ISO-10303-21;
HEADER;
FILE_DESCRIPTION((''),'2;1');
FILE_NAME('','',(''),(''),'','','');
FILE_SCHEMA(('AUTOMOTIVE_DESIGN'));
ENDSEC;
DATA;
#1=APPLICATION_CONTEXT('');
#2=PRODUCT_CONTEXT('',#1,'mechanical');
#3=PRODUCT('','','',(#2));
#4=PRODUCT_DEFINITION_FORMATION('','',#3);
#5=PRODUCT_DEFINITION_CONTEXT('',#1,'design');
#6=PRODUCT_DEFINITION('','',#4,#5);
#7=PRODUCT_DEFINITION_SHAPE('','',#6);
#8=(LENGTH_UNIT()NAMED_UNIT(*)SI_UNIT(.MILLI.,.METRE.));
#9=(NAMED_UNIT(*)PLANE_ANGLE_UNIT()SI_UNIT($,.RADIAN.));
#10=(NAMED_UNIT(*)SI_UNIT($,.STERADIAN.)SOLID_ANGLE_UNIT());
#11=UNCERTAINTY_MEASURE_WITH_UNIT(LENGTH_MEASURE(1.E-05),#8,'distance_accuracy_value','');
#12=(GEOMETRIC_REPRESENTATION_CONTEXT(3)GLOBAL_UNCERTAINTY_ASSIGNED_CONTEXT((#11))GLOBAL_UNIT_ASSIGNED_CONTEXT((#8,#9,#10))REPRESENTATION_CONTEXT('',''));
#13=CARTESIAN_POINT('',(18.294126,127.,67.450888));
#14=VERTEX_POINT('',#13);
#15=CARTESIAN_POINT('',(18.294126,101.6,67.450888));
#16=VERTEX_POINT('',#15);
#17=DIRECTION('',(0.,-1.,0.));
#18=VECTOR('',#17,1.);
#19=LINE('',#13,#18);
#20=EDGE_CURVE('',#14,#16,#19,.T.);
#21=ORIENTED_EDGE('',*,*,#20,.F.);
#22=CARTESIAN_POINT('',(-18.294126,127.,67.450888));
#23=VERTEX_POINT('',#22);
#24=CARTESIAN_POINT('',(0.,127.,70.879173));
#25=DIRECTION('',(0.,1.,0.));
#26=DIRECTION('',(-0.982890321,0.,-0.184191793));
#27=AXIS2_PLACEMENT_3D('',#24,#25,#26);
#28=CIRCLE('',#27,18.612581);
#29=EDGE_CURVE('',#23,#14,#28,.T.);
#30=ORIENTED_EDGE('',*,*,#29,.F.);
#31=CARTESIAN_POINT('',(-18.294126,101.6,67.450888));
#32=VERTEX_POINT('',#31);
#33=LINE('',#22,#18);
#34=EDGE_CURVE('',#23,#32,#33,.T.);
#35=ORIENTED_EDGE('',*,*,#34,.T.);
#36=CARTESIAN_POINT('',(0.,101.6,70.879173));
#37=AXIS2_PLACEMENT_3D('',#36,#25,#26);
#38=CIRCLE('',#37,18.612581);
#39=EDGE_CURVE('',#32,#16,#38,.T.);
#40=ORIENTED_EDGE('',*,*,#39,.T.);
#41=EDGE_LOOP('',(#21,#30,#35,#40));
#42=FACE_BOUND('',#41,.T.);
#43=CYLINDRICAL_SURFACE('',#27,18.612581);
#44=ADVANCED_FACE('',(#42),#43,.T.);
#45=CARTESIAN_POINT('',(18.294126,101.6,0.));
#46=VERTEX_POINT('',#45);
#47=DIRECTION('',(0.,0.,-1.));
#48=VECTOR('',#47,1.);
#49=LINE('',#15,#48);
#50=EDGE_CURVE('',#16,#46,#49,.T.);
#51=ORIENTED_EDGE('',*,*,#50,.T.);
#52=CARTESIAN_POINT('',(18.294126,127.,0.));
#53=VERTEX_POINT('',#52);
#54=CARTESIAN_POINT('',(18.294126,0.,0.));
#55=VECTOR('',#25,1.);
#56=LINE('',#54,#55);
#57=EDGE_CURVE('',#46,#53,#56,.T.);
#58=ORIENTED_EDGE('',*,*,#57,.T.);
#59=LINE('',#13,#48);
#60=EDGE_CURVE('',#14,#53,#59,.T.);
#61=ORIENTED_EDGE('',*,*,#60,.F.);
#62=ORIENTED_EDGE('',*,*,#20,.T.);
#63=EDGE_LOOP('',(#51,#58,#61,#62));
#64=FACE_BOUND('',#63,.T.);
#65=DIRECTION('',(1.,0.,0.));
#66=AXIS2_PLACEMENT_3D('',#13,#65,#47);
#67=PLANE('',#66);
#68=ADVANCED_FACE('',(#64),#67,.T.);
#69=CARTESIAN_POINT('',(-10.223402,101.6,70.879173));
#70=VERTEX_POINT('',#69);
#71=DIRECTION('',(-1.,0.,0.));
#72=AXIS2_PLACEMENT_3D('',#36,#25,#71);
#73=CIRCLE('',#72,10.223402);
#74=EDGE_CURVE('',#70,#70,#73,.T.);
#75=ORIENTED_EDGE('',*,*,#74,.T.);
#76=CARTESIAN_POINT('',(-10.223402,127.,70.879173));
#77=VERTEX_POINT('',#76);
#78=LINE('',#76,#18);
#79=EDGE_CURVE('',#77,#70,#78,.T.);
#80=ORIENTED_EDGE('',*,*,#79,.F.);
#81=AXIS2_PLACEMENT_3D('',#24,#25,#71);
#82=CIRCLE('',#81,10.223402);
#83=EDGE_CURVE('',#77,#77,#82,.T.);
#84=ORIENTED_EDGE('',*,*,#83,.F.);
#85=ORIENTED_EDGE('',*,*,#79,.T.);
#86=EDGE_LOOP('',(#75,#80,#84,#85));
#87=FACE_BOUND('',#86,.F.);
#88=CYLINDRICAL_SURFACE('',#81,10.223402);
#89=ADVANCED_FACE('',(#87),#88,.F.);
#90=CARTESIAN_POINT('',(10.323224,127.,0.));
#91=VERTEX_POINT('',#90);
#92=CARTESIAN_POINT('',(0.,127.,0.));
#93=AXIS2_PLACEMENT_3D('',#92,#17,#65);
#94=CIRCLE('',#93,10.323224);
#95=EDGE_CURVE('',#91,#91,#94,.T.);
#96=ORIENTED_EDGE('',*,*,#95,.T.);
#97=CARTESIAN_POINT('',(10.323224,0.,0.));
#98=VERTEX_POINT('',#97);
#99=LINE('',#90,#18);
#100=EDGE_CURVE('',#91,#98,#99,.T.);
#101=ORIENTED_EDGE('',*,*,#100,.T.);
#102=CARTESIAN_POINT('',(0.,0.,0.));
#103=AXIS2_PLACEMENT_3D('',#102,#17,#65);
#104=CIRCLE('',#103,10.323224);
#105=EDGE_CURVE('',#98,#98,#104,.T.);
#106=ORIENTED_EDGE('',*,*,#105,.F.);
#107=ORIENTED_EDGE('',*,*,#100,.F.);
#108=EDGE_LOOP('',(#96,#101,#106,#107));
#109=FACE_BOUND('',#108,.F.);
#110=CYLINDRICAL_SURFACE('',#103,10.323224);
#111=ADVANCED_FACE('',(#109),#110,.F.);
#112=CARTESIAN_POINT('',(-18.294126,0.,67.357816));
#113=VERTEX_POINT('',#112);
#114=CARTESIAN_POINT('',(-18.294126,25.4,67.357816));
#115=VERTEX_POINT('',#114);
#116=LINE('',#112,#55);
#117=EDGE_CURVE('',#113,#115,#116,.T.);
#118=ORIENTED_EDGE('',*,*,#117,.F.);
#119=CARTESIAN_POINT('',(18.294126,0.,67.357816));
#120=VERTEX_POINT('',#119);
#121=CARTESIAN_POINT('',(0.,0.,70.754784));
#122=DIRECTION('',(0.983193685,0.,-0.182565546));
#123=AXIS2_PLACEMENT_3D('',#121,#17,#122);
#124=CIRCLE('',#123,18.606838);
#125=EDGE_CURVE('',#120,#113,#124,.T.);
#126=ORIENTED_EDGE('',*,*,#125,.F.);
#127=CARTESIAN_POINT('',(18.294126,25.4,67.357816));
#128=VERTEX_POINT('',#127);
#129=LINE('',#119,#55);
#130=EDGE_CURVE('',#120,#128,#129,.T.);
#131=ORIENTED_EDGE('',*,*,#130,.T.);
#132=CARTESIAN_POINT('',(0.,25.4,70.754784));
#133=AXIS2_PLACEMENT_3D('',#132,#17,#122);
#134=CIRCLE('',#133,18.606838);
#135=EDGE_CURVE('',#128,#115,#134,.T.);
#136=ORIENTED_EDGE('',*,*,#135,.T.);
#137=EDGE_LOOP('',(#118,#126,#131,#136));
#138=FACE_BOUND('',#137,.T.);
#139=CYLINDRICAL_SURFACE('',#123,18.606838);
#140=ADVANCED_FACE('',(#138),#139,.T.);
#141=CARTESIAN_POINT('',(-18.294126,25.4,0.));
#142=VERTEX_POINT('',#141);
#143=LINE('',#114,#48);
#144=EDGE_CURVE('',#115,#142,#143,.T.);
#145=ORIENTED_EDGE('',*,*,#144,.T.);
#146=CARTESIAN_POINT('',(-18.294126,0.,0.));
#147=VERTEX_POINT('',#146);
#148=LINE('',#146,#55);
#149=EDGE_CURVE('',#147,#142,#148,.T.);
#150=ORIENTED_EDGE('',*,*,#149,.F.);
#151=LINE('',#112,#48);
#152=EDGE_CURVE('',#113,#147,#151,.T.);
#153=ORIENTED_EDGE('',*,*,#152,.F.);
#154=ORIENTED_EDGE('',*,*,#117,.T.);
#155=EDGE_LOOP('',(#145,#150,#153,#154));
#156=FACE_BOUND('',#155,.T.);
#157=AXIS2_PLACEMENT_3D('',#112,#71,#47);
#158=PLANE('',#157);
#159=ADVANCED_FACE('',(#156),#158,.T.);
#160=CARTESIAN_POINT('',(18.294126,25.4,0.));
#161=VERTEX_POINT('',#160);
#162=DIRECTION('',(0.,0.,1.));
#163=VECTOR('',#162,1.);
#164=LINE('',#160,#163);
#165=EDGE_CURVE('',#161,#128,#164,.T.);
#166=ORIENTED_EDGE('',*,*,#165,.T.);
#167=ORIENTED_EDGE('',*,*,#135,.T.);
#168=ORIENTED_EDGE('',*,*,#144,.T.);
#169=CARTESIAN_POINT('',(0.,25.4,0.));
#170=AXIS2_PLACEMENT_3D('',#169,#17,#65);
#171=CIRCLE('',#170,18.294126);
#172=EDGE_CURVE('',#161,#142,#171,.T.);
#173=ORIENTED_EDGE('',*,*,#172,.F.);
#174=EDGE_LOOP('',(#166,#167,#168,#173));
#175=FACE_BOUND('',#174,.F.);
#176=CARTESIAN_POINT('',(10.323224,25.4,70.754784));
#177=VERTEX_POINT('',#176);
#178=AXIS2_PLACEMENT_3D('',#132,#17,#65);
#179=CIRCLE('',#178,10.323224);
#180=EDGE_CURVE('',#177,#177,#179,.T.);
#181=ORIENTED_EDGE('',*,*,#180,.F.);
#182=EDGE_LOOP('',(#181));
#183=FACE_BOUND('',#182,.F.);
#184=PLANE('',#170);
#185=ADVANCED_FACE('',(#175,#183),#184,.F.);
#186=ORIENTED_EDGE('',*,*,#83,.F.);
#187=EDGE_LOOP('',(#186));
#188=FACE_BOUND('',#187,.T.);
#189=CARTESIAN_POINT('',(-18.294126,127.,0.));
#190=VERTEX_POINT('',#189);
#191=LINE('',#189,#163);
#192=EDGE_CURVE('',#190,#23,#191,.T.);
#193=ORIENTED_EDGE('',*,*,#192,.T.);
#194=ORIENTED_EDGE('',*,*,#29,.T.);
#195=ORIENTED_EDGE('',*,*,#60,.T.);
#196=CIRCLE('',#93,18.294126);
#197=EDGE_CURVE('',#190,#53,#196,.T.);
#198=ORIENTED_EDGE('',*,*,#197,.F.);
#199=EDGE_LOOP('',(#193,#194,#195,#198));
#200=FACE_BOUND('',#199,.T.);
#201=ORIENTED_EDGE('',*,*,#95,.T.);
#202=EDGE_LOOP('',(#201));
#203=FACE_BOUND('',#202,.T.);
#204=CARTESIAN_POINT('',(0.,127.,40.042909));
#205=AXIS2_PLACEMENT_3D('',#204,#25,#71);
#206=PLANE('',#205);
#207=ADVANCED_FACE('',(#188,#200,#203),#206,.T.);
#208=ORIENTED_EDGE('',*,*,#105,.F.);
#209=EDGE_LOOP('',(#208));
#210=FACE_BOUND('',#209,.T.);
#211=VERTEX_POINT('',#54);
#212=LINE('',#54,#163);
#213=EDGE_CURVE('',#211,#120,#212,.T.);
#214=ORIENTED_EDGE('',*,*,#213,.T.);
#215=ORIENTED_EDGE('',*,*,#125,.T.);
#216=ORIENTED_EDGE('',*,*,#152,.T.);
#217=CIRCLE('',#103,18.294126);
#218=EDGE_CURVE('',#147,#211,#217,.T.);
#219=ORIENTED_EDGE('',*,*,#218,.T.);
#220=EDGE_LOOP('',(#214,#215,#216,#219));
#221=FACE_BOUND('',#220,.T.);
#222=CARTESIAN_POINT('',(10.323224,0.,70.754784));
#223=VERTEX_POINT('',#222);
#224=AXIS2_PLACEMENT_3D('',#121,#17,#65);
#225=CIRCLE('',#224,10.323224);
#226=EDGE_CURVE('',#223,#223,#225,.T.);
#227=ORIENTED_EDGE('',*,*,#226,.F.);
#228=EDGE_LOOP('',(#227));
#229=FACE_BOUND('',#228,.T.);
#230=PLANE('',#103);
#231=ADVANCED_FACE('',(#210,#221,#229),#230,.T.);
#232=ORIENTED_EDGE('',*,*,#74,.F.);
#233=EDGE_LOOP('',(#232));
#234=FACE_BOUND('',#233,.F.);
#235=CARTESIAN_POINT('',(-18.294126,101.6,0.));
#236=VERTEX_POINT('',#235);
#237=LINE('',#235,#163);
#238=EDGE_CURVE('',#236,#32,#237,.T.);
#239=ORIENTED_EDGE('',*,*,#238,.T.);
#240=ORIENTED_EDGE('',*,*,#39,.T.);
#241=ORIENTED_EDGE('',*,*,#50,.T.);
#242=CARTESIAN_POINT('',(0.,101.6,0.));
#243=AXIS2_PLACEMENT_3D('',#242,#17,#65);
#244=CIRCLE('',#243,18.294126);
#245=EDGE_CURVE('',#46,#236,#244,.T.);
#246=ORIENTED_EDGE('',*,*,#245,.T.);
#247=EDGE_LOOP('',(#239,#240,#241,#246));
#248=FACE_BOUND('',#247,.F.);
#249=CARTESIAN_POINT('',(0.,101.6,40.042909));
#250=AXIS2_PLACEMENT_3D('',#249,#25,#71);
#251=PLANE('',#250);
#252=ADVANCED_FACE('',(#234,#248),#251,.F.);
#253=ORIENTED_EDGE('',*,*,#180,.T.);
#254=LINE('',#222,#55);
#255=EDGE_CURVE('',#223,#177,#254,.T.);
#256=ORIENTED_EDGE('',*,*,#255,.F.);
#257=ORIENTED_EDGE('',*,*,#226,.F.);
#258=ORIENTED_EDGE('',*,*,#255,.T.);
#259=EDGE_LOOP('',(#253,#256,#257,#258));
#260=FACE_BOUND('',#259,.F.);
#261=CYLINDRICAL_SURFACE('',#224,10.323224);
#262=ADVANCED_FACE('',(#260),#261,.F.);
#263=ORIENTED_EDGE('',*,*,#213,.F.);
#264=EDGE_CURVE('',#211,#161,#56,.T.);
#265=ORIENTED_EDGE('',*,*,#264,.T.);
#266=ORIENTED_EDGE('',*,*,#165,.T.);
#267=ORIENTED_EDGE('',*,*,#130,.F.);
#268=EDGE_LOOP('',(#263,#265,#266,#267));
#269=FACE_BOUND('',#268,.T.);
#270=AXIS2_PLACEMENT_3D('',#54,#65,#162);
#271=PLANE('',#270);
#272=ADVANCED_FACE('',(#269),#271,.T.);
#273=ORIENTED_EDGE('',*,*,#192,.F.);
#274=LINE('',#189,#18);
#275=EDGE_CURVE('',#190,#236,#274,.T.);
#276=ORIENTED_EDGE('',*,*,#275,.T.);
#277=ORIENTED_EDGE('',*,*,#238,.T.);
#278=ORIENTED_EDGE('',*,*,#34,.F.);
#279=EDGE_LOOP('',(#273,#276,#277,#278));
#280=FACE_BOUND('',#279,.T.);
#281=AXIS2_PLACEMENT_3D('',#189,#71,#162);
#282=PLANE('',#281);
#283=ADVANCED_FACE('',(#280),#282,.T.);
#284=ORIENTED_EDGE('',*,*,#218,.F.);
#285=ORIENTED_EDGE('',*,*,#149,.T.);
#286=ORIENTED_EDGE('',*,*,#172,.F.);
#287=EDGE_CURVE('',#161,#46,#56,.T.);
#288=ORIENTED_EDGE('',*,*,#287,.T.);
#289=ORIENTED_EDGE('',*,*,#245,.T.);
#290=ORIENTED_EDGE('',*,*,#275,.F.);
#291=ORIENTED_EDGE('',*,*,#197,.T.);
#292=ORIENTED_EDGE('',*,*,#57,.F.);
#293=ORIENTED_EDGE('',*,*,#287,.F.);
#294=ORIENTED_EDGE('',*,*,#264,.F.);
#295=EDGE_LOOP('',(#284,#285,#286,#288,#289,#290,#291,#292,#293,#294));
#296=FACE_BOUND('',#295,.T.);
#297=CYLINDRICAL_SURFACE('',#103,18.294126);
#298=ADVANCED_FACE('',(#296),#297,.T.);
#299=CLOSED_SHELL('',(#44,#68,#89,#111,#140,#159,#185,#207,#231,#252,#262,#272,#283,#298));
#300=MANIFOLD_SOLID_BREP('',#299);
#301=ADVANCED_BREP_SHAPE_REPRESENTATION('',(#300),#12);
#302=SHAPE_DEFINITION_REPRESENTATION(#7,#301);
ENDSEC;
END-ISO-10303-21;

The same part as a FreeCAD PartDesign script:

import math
import FreeCAD as App
import Part
import Sketcher

V = App.Vector
Q = App.Units.Quantity

doc = App.newDocument("Part")
body = doc.addObject("PartDesign::Body", "Body")

sketch1 = body.newObject("Sketcher::SketchObject", "Sketch")
sketch1.AttachmentSupport = (doc.getObject("XZ_Plane"), [""])
sketch1.MapMode = "FlatFace"
sketch1.addGeometry(Part.Circle(V(0, 0, 0), V(0, 0, 1), 18.294126), False)
sketch1.addGeometry(Part.Circle(V(0, 0, 0), V(0, 0, 1), 10.323224), False)
sketch1.addConstraint(Sketcher.Constraint("Coincident", 0, 3, -1, 1))
sketch1.addConstraint(Sketcher.Constraint("Coincident", 1, 3, -1, 1))
sketch1.addConstraint(Sketcher.Constraint("Diameter", 0, 36.588252))
sketch1.addConstraint(Sketcher.Constraint("Diameter", 1, 20.646448))
pad1 = body.newObject("PartDesign::Pad", "Pad")
pad1.Profile = sketch1
pad1.Length = Q("5 in")
pad1.Reversed = True

sketch2 = body.newObject("Sketcher::SketchObject", "Sketch001")
sketch2.AttachmentSupport = (doc.getObject("XZ_Plane"), [""])
sketch2.MapMode = "FlatFace"
sketch2.addGeometry(Part.ArcOfCircle(Part.Circle(V(0, 0, 0), V(0, 0, 1), 18.294126), math.radians(180), math.radians(360)), False)
sketch2.addGeometry(Part.LineSegment(V(18.294126, 0, 0), V(18.294126, 67.357816, 0)), False)
sketch2.addGeometry(Part.ArcOfCircle(Part.Circle(V(0, 70.754784, 0), V(0, 0, 1), 18.606838), math.radians(-10.519231), math.radians(190.519231)), False)
sketch2.addGeometry(Part.LineSegment(V(-18.294126, 67.357816, 0), V(-18.294126, 0, 0)), False)
sketch2.addGeometry(Part.Circle(V(0, 0, 0), V(0, 0, 1), 10.323224), False)
sketch2.addGeometry(Part.Circle(V(0, 70.754784, 0), V(0, 0, 1), 10.323224), False)
sketch2.addConstraint(Sketcher.Constraint("Tangent", 0, 2, 1, 1))
sketch2.addConstraint(Sketcher.Constraint("Coincident", 1, 2, 2, 1))
sketch2.addConstraint(Sketcher.Constraint("Coincident", 2, 2, 3, 1))
sketch2.addConstraint(Sketcher.Constraint("Tangent", 3, 2, 0, 1))
sketch2.addConstraint(Sketcher.Constraint("Vertical", 1))
sketch2.addConstraint(Sketcher.Constraint("Vertical", 3))
sketch2.addConstraint(Sketcher.Constraint("Coincident", 0, 3, -1, 1))
sketch2.addConstraint(Sketcher.Constraint("Coincident", 4, 3, -1, 1))
sketch2.addConstraint(Sketcher.Constraint("Coincident", 5, 3, 2, 3))
sketch2.addConstraint(Sketcher.Constraint("Equal", 4, 5))
sketch2.addConstraint(Sketcher.Constraint("PointOnObject", 2, 3, -2))
sketch2.addConstraint(Sketcher.Constraint("Radius", 2, 18.606838))
sketch2.addConstraint(Sketcher.Constraint("Diameter", 4, 20.646448))
sketch2.addConstraint(Sketcher.Constraint("Radius", 0, 18.294126))
sketch2.addConstraint(Sketcher.Constraint("DistanceY", 1, 1, 1, 2, 67.357816))
pad2 = body.newObject("PartDesign::Pad", "Pad001")
pad2.Profile = sketch2
pad2.Length = Q("1 in")
pad2.Reversed = True

sketch3 = body.newObject("Sketcher::SketchObject", "Sketch002")
sketch3.AttachmentSupport = (doc.getObject("XZ_Plane"), [""])
sketch3.MapMode = "FlatFace"
sketch3.AttachmentOffset = App.Placement(V(0, 0, -5 * 25.4), App.Rotation())
sketch3.addGeometry(Part.LineSegment(V(18.294126, 67.450888, 0), V(18.294126, 0, 0)), False)
sketch3.addGeometry(Part.ArcOfCircle(Part.Circle(V(0, 0, 0), V(0, 0, 1), 18.294126), math.radians(0), math.radians(180)), False)
sketch3.addGeometry(Part.LineSegment(V(-18.294126, 0, 0), V(-18.294126, 67.450888, 0)), False)
sketch3.addGeometry(Part.ArcOfCircle(Part.Circle(V(0, 70.879173, 0), V(0, 0, 1), 18.612581), math.radians(-10.614016), math.radians(190.614016)), False)
sketch3.addGeometry(Part.Circle(V(0, 70.879173, 0), V(0, 0, 1), 10.223402), False)
sketch3.addConstraint(Sketcher.Constraint("Tangent", 0, 2, 1, 1))
sketch3.addConstraint(Sketcher.Constraint("Tangent", 1, 2, 2, 1))
sketch3.addConstraint(Sketcher.Constraint("Coincident", 2, 2, 3, 2))
sketch3.addConstraint(Sketcher.Constraint("Coincident", 3, 1, 0, 1))
sketch3.addConstraint(Sketcher.Constraint("Vertical", 0))
sketch3.addConstraint(Sketcher.Constraint("Vertical", 2))
sketch3.addConstraint(Sketcher.Constraint("Coincident", 1, 3, -1, 1))
sketch3.addConstraint(Sketcher.Constraint("Coincident", 4, 3, 3, 3))
sketch3.addConstraint(Sketcher.Constraint("PointOnObject", 3, 3, -2))
sketch3.addConstraint(Sketcher.Constraint("Radius", 3, 18.612581))
sketch3.addConstraint(Sketcher.Constraint("Diameter", 4, 20.446804))
sketch3.addConstraint(Sketcher.Constraint("Radius", 1, 18.294126))
sketch3.addConstraint(Sketcher.Constraint("DistanceY", 0, 2, 0, 1, 67.450888))
pad3 = body.newObject("PartDesign::Pad", "Pad002")
pad3.Profile = sketch3
pad3.Length = Q("1 in")

doc.recompute()
